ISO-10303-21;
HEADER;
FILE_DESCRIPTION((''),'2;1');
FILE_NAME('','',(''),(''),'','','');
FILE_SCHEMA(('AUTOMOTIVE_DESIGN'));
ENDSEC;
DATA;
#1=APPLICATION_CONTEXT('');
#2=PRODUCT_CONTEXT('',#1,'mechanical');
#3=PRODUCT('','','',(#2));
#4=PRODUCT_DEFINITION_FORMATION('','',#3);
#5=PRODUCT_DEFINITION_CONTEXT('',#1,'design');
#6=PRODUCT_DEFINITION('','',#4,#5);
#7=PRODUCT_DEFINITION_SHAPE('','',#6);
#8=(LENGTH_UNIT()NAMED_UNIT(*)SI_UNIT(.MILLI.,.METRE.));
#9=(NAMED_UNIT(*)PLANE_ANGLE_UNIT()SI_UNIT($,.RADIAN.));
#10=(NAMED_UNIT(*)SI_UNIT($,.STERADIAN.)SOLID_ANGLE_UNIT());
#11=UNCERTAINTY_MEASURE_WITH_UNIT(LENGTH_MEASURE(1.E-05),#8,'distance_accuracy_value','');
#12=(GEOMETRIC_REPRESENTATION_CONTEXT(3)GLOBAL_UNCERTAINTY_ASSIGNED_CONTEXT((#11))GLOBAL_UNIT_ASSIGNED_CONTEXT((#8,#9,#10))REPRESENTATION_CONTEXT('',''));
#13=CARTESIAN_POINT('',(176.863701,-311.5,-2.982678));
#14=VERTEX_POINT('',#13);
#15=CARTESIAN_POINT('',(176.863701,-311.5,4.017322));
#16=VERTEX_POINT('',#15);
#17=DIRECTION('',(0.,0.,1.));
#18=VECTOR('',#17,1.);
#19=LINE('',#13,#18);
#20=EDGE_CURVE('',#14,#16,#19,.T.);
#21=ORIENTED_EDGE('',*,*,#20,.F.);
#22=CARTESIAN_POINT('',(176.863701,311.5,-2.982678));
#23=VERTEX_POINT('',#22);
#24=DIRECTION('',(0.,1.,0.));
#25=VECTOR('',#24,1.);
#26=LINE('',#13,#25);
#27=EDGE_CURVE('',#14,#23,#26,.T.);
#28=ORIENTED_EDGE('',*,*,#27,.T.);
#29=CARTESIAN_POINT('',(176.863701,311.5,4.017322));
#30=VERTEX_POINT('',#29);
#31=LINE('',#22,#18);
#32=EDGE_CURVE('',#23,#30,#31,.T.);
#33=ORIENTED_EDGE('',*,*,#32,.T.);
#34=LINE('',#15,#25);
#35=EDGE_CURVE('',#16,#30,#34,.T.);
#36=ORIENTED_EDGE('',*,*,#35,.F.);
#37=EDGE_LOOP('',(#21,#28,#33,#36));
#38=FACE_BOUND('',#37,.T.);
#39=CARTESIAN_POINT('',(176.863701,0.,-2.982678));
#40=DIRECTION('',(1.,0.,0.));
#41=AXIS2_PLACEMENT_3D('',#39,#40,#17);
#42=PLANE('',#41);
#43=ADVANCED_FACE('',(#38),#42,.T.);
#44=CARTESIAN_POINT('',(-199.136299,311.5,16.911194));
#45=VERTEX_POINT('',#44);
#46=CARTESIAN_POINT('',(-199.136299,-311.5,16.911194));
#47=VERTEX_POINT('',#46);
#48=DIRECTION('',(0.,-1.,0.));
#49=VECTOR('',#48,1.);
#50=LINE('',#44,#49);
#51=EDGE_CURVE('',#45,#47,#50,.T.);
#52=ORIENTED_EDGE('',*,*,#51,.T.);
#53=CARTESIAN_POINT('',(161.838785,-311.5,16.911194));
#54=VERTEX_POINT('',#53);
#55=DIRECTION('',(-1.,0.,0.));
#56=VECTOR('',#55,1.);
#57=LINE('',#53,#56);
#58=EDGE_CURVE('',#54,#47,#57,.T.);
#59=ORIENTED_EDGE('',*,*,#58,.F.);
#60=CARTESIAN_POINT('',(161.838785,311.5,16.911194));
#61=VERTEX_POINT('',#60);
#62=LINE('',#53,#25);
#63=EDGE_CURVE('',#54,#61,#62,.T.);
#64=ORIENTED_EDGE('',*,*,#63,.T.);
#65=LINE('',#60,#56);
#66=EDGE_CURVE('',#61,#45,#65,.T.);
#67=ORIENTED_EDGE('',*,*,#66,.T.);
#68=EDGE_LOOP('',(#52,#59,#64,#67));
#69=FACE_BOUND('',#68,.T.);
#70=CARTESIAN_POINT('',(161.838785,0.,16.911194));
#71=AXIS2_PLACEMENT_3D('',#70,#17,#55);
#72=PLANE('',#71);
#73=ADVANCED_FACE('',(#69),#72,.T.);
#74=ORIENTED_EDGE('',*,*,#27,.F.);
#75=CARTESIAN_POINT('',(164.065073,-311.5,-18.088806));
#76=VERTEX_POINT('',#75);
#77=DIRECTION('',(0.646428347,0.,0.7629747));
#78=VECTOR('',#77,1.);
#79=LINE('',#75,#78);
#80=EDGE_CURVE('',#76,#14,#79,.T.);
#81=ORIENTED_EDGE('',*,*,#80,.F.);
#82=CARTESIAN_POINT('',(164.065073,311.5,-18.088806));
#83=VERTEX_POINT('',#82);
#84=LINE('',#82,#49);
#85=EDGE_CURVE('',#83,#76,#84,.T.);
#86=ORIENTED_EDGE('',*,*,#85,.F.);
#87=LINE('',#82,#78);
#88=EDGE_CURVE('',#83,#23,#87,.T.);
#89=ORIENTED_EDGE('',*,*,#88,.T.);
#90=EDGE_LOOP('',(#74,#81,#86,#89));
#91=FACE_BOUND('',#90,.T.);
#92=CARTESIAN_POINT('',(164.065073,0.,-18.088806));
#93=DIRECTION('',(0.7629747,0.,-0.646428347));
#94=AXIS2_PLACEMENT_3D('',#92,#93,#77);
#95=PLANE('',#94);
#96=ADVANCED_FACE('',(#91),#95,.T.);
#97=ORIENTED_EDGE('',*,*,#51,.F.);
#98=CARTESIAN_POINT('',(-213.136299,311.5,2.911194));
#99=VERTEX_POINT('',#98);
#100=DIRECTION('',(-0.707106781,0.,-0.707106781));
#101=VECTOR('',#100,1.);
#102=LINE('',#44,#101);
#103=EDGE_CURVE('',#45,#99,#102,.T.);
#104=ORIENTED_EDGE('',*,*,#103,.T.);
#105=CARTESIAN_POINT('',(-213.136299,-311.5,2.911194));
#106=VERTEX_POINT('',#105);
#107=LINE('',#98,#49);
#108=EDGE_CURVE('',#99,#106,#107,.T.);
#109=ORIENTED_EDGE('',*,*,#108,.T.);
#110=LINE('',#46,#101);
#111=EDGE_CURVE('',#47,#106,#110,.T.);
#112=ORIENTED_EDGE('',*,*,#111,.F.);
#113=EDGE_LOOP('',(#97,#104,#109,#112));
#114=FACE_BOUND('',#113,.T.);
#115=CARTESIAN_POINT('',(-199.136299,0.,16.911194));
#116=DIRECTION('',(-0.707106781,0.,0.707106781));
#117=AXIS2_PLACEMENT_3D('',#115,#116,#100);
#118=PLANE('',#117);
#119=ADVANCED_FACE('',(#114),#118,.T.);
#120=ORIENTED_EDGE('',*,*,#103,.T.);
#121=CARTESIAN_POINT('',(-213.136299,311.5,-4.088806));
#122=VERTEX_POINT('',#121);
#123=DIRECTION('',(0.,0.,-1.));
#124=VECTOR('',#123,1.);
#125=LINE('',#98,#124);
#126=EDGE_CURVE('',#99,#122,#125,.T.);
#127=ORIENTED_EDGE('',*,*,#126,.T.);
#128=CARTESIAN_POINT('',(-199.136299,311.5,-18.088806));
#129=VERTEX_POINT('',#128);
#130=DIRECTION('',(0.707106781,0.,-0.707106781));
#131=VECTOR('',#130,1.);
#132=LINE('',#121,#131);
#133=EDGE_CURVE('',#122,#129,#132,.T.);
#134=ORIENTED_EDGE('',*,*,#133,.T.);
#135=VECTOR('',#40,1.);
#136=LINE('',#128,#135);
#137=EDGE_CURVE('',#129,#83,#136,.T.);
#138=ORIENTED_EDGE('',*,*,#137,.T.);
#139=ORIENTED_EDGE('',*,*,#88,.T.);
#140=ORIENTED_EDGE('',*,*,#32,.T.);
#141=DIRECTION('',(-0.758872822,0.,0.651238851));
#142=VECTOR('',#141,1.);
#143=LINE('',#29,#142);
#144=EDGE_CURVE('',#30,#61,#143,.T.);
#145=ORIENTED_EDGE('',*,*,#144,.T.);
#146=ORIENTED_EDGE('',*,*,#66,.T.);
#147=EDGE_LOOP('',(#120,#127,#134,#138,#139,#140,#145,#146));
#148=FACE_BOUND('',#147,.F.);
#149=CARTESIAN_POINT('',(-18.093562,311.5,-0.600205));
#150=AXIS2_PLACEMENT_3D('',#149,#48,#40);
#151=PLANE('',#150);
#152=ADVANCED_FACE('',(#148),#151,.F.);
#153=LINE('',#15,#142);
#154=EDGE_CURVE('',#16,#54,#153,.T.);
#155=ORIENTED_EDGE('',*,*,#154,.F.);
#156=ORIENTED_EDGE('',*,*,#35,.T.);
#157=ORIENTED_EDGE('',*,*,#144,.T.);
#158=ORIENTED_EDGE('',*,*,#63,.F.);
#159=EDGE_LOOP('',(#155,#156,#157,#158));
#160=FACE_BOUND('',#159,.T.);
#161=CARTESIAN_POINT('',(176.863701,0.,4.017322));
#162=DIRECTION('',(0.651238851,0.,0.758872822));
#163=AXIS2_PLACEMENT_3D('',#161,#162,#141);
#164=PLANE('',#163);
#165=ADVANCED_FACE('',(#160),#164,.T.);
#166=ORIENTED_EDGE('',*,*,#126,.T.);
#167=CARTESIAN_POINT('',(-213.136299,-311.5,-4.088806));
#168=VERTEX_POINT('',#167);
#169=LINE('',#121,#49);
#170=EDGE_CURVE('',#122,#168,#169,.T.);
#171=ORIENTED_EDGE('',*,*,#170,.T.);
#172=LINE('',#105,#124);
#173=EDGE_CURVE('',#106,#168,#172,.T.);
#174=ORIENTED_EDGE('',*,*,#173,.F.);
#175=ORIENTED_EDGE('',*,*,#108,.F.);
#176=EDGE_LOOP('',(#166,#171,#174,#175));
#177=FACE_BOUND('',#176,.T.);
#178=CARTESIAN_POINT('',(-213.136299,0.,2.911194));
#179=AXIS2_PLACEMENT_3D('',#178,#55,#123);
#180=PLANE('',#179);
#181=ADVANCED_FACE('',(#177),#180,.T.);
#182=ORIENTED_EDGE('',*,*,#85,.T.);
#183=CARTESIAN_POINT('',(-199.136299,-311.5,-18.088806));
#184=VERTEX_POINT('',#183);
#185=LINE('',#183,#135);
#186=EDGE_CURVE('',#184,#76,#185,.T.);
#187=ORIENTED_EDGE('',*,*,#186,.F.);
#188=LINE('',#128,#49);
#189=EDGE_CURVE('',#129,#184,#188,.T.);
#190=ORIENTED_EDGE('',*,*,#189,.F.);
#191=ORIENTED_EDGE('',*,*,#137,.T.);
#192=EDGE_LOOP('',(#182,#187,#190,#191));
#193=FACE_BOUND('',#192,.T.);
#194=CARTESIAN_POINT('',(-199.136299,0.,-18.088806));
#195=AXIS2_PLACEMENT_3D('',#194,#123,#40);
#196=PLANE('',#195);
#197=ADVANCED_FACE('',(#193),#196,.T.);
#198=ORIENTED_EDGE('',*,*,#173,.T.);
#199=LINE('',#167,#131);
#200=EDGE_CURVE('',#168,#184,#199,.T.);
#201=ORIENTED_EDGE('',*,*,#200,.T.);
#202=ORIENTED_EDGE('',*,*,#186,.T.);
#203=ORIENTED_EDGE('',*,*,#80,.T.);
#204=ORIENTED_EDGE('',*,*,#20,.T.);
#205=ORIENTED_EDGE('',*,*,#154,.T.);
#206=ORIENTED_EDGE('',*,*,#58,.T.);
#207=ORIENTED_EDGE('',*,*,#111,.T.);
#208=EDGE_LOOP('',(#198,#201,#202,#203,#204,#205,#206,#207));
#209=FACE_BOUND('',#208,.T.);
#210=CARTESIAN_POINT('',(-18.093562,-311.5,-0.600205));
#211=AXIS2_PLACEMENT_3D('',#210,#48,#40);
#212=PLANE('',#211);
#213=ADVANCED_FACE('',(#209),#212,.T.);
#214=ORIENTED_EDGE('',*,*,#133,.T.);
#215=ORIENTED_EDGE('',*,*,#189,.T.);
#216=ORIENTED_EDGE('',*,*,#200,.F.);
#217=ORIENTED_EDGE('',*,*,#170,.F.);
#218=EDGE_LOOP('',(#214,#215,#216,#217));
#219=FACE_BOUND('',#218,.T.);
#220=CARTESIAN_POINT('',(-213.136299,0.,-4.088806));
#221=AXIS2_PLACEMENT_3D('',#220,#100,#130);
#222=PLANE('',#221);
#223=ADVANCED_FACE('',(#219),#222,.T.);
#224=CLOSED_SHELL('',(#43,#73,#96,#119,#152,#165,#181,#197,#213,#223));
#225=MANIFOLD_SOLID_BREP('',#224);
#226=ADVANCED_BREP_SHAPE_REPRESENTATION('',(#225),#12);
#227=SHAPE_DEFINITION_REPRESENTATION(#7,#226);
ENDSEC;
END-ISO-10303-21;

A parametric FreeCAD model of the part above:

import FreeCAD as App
import Part
import Sketcher
from FreeCAD import Vector
Q = App.Units.Quantity


def add_polygon(sketch, points):
    """Adds a closed chain of lines whose ends are joined by coincident constraints."""
    first, n = sketch.GeometryCount, len(points)
    for a, b in zip(points, points[1:] + points[:1]):
        sketch.addGeometry(Part.LineSegment(App.Vector(*a, 0), App.Vector(*b, 0)), False)
    for i in range(n):
        sketch.addConstraint(Sketcher.Constraint("Coincident", first + i, 2, first + (i + 1) % n, 1))

doc = App.newDocument("Part")
body = doc.addObject("PartDesign::Body", "Body")

# Sketch on XZ plane
sketch1 = doc.addObject("Sketcher::SketchObject", "Sketch")
body.addObject(sketch1)
sketch1.AttachmentSupport = (doc.XZ_Plane, [""])
sketch1.MapMode = "FlatFace"
add_polygon(sketch1, [(162, 17), (-199, 17), (-213, 3), (-213, -4), (-199, -18), (164, -18), (177, -3), (177, 4)])  # lines 0-7
sketch1.addConstraint([
    Sketcher.Constraint("Horizontal", 0),
    Sketcher.Constraint("Vertical", 2),
    Sketcher.Constraint("Horizontal", 4),
    Sketcher.Constraint("Vertical", 6),
    Sketcher.Constraint("Perpendicular", 1, 3),
    Sketcher.Constraint("Vertical", 0, 2, 3, 2),
    Sketcher.Constraint("Equal", 2, 6),
    Sketcher.Constraint("Equal", 1, 3),
    Sketcher.Constraint("Equal", 3, 5),
    Sketcher.Constraint("Equal", 5, 7),
    Sketcher.Constraint("DistanceY", 2, 2, 2, 1, Q("7 mm")),
    Sketcher.Constraint("DistanceX", 1, 2, 0, 2, Q("14 mm")),
    Sketcher.Constraint("DistanceX", 3, 2, 5, 2, Q("376 mm")),
    Sketcher.Constraint("DistanceX", 4, 1, 4, 2, Q("363.201372 mm")),
    Sketcher.Constraint("DistanceX", 0, 2, -1, 1, Q("199.136299 mm")),
    Sketcher.Constraint("DistanceY", -1, 1, 0, 2, Q("16.911194 mm")),
])
pad1 = doc.addObject("PartDesign::Pad", "Pad")
body.addObject(pad1)
pad1.Profile = sketch1
pad1.Type = "TwoLengths"
pad1.Length = 311.5
pad1.Length2 = 311.5

doc.recompute()
